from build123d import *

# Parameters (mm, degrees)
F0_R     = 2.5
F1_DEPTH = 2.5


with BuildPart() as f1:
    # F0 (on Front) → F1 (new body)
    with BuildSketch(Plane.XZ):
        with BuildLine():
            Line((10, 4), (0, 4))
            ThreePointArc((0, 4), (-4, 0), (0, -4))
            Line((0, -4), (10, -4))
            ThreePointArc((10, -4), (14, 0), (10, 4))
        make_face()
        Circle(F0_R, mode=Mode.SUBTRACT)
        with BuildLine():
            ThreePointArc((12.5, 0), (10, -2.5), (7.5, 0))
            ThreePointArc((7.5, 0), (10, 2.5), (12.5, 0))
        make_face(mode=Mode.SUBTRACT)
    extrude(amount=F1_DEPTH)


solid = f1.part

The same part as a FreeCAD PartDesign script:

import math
import FreeCAD as App
import Part
import Sketcher
from FreeCAD import Vector
Q = App.Units.Quantity

doc = App.newDocument("Part")
body = doc.addObject("PartDesign::Body", "Body")

# Sketch on XZ plane
sketch1 = doc.addObject("Sketcher::SketchObject", "Sketch")
body.addObject(sketch1)
sketch1.AttachmentSupport = (doc.XZ_Plane, [""])
sketch1.MapMode = "FlatFace"
sketch1.addGeometry(Part.LineSegment(Vector(10, 4, 0), Vector(0, 4, 0)), False)
sketch1.addGeometry(Part.ArcOfCircle(Part.Circle(Vector(0, 0, 0), Vector(0, 0, 1), 4), math.radians(90), math.radians(270)), False)
sketch1.addGeometry(Part.LineSegment(Vector(0, -4, 0), Vector(10, -4, 0)), False)
sketch1.addGeometry(Part.ArcOfCircle(Part.Circle(Vector(10, 0, 0), Vector(0, 0, 1), 4), math.radians(-90), math.radians(90)), False)
sketch1.addGeometry(Part.Circle(Vector(0, 0, 0), Vector(0, 0, 1), 2.5), False)
sketch1.addGeometry(Part.Circle(Vector(10, 0, 0), Vector(0, 0, 1), 2.5), False)
sketch1.addConstraint(Sketcher.Constraint("Tangent", 0, 2, 1, 1))
sketch1.addConstraint(Sketcher.Constraint("Tangent", 1, 2, 2, 1))
sketch1.addConstraint(Sketcher.Constraint("Tangent", 2, 2, 3, 1))
sketch1.addConstraint(Sketcher.Constraint("Tangent", 3, 2, 0, 1))
sketch1.addConstraint(Sketcher.Constraint("Horizontal", 0))
sketch1.addConstraint(Sketcher.Constraint("Horizontal", 2))
sketch1.addConstraint(Sketcher.Constraint("Coincident", 1, 3, -1, 1))
sketch1.addConstraint(Sketcher.Constraint("Coincident", 4, 3, -1, 1))
sketch1.addConstraint(Sketcher.Constraint("Coincident", 5, 3, 3, 3))
sketch1.addConstraint(Sketcher.Constraint("Equal", 4, 5))
sketch1.addConstraint(Sketcher.Constraint("Diameter", 4, Q("5 mm")))
sketch1.addConstraint(Sketcher.Constraint("Radius", 1, Q("4 mm")))
sketch1.addConstraint(Sketcher.Constraint("DistanceX", 0, 2, 0, 1, Q("10 mm")))
pad1 = doc.addObject("PartDesign::Pad", "Pad")
body.addObject(pad1)
pad1.Profile = sketch1
pad1.Length = 2.5

doc.recompute()
